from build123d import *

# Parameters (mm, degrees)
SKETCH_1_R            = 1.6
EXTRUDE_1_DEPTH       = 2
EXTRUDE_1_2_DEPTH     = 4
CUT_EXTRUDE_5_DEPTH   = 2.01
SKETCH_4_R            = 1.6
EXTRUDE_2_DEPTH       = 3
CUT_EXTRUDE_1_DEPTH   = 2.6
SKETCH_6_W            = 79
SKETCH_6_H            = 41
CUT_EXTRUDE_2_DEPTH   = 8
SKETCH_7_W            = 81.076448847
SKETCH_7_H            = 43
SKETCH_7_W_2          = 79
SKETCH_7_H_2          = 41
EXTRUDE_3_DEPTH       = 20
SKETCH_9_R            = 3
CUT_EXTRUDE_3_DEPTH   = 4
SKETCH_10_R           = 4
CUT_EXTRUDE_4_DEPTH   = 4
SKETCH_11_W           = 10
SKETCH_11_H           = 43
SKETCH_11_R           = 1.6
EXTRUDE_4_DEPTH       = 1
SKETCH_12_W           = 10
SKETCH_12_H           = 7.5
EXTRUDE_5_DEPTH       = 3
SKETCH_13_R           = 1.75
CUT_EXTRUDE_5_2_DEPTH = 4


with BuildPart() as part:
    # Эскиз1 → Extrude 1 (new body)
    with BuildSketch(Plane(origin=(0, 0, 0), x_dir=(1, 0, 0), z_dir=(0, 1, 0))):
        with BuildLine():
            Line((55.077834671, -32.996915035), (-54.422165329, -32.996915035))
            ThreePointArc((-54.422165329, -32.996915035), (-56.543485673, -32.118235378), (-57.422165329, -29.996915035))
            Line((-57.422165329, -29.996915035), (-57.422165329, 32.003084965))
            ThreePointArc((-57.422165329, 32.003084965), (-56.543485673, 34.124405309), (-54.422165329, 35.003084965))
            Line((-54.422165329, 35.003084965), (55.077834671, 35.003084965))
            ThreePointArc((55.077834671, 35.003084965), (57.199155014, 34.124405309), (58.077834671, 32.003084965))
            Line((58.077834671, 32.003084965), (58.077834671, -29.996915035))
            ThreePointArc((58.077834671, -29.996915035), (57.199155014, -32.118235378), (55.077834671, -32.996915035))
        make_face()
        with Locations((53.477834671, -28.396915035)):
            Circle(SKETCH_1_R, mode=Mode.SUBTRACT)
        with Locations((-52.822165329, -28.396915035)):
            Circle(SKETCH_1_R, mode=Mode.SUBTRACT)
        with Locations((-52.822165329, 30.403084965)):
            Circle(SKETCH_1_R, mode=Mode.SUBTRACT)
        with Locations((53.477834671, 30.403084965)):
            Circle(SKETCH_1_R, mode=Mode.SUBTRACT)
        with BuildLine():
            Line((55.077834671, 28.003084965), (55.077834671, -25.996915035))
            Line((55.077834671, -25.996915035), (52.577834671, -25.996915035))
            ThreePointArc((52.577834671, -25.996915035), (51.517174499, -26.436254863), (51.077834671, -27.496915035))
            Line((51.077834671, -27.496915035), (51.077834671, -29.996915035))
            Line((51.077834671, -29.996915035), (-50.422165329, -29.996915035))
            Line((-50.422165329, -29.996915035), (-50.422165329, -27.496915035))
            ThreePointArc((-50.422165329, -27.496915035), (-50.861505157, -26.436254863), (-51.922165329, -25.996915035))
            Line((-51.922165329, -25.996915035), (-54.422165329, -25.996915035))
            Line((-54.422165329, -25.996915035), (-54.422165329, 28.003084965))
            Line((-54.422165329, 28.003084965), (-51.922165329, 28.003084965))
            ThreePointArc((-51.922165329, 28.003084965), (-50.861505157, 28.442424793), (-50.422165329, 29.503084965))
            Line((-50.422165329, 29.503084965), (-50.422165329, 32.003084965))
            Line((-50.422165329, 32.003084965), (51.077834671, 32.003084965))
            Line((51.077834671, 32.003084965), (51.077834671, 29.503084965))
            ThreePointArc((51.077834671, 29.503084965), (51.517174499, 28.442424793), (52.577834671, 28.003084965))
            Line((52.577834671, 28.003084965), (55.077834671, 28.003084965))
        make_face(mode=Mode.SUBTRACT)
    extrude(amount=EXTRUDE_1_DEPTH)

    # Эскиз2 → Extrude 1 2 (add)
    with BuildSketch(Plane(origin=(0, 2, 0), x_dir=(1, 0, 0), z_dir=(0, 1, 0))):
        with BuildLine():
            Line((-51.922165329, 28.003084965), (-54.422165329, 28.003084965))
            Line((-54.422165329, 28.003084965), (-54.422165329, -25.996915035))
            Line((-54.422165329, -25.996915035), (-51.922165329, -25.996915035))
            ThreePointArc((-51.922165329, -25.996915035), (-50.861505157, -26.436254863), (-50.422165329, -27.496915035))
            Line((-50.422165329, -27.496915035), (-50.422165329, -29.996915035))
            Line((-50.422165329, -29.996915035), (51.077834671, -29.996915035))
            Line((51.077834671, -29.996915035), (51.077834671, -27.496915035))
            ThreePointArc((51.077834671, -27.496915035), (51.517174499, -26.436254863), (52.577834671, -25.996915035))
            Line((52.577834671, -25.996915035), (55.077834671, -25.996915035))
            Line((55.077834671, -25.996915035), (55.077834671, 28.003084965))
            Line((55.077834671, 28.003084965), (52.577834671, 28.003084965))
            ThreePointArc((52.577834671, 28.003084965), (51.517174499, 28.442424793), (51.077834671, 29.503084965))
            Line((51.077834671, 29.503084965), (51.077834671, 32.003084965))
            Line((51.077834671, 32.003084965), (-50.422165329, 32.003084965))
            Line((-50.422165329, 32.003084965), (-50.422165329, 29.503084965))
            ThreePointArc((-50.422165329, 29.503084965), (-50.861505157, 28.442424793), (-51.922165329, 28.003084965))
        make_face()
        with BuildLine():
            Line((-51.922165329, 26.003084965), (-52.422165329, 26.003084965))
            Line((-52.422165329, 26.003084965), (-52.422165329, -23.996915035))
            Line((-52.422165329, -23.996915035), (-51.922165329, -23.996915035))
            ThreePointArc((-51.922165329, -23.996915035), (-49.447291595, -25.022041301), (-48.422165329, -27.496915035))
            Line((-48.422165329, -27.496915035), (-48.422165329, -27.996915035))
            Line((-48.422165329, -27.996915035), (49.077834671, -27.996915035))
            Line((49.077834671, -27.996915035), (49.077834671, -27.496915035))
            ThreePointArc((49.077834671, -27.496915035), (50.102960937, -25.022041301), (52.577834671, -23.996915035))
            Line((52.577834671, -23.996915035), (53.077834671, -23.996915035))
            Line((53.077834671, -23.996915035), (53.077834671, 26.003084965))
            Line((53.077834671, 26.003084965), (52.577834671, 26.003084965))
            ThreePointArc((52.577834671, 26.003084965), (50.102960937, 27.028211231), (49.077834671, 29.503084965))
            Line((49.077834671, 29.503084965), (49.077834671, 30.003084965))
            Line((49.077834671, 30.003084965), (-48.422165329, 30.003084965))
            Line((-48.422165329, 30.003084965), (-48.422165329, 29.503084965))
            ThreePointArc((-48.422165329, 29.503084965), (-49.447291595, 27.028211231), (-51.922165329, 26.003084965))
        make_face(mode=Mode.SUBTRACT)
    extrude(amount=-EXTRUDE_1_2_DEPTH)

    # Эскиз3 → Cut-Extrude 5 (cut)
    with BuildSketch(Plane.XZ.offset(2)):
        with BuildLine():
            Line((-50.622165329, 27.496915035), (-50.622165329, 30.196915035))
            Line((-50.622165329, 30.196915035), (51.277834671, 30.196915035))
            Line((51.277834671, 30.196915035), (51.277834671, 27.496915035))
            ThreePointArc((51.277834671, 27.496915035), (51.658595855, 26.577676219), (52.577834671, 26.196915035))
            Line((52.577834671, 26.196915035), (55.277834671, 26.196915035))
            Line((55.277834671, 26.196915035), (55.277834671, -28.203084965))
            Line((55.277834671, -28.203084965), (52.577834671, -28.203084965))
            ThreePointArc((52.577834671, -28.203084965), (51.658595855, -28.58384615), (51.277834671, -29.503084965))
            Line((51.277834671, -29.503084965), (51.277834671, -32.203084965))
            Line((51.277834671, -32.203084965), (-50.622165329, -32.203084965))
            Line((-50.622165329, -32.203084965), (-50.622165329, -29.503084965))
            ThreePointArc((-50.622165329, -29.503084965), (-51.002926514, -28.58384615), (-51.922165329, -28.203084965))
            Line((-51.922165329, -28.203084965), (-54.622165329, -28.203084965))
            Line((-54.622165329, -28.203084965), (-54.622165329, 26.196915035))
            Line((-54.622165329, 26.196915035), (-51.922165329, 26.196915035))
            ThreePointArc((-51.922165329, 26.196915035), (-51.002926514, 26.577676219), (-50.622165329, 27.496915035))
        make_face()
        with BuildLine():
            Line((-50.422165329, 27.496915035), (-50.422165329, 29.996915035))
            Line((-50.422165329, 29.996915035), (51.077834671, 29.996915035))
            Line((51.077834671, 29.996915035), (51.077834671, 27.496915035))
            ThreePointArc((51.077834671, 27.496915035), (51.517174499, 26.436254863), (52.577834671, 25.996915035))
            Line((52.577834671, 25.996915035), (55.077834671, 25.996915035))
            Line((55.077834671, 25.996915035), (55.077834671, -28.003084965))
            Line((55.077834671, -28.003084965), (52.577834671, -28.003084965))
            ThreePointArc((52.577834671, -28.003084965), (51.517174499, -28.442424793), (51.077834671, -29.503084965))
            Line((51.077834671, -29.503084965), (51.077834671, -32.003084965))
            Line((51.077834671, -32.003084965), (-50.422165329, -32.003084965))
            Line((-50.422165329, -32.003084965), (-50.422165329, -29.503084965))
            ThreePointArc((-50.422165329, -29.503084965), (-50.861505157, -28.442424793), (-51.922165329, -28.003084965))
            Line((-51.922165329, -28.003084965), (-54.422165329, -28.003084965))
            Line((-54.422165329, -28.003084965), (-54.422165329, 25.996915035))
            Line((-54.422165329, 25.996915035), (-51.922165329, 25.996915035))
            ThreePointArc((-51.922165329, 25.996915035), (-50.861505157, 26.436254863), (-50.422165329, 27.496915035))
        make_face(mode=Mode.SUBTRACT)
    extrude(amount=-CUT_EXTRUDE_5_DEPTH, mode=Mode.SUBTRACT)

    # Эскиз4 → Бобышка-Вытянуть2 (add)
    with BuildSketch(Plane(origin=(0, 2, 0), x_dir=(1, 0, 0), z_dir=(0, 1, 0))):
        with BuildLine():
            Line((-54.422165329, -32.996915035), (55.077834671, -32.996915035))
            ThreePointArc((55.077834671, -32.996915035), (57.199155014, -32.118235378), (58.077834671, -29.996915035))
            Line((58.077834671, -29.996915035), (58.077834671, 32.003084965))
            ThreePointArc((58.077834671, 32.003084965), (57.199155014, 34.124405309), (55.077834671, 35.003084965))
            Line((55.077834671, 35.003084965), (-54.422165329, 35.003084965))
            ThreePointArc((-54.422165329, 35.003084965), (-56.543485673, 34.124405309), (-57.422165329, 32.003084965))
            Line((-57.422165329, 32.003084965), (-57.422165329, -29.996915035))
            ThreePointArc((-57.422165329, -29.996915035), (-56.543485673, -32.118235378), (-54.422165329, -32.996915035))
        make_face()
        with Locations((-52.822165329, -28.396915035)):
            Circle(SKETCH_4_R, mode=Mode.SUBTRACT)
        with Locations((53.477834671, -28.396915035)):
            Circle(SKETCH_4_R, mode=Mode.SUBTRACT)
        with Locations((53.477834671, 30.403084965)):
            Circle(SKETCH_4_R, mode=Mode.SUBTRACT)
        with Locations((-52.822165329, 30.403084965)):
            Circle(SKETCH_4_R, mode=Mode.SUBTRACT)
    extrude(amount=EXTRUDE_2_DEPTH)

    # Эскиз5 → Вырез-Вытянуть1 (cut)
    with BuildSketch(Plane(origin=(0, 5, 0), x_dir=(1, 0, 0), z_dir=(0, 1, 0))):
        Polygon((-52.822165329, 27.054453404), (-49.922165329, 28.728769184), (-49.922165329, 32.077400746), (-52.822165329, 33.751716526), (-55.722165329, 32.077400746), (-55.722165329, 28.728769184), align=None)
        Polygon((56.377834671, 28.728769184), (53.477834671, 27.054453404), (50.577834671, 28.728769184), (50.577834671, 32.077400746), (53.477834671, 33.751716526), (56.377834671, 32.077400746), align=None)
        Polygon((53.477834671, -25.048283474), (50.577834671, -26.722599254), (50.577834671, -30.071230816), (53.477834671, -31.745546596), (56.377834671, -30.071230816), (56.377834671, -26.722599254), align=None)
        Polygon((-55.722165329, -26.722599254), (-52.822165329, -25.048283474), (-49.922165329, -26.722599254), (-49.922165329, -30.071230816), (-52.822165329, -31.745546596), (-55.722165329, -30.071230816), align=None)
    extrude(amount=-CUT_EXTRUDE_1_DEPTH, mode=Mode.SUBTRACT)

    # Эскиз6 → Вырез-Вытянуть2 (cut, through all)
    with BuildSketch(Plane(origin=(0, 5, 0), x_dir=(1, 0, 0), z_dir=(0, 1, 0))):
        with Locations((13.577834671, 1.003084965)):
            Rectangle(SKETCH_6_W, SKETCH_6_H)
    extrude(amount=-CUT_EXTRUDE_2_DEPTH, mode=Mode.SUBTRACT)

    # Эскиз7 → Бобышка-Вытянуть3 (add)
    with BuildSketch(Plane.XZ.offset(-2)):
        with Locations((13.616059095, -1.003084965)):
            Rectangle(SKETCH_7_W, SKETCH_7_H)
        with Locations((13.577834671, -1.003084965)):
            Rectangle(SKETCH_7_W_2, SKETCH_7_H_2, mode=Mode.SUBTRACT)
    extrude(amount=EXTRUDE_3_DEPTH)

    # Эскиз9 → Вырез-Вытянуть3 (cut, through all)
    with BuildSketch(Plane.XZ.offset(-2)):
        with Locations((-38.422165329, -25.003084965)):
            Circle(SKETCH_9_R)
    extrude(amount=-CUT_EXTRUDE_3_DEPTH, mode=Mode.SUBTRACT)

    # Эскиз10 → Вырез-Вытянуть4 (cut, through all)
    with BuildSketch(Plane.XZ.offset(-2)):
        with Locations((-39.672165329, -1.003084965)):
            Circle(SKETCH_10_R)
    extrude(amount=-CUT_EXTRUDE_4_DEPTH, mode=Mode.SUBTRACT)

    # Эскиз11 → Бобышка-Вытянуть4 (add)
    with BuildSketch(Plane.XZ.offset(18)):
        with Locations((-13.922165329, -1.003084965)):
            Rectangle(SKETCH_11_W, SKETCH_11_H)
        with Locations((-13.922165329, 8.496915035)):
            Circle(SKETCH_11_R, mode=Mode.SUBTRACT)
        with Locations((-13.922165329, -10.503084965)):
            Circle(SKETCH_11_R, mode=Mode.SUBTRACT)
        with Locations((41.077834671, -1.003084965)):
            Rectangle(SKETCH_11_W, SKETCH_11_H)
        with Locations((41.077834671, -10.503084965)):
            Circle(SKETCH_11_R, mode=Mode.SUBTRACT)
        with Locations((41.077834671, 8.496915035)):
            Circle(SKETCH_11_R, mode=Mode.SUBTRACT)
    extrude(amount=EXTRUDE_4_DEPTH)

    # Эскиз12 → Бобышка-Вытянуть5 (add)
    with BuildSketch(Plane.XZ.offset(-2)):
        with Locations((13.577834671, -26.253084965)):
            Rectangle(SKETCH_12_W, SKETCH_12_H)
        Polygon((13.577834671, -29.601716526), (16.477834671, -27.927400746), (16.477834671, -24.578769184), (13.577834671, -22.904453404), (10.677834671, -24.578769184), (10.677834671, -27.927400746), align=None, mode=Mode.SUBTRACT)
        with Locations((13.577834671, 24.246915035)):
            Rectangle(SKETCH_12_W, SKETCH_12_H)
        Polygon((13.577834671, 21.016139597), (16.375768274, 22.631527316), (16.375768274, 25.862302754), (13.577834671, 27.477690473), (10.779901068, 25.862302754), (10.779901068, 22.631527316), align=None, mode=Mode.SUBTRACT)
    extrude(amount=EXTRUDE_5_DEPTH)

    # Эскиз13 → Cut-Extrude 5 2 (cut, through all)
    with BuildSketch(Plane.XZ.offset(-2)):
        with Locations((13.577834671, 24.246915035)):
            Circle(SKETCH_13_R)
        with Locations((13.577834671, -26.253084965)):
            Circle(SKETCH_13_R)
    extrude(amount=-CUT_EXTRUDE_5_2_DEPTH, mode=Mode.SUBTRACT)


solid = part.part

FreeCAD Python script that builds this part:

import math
import FreeCAD as App
import Part
import Sketcher
Q = App.Units.Quantity


def add_polygon(sketch, points):
    """Adds a closed chain of lines whose ends are joined by coincident constraints."""
    first, n = sketch.GeometryCount, len(points)
    for a, b in zip(points, points[1:] + points[:1]):
        sketch.addGeometry(Part.LineSegment(App.Vector(*a, 0), App.Vector(*b, 0)), False)
    for i in range(n):
        sketch.addConstraint(Sketcher.Constraint("Coincident", first + i, 2, first + (i + 1) % n, 1))

doc = App.newDocument("Part")
body = doc.addObject("PartDesign::Body", "Body")

# Sketch on XZ plane
sketch1 = body.newObject("Sketcher::SketchObject", "Sketch")
sketch1.AttachmentSupport = (doc.getObject("XZ_Plane"), [""])
sketch1.MapMode = "FlatFace"
sketch1.addGeometry([
    Part.LineSegment(App.Vector(-54.422165, 32.996915, 0), App.Vector(55.077835, 32.996915, 0)),  # 0
    Part.ArcOfCircle(Part.Circle(App.Vector(55.077835, 29.996915, 0), App.Vector(0, 0, 1), 3), math.radians(0), math.radians(90)),  # 1
    Part.LineSegment(App.Vector(58.077835, 29.996915, 0), App.Vector(58.077835, -32.003085, 0)),  # 2
    Part.ArcOfCircle(Part.Circle(App.Vector(55.077835, -32.003085, 0), App.Vector(0, 0, 1), 3), math.radians(-90), math.radians(0)),  # 3
    Part.LineSegment(App.Vector(55.077835, -35.003085, 0), App.Vector(-54.422165, -35.003085, 0)),  # 4
    Part.ArcOfCircle(Part.Circle(App.Vector(-54.422165, -32.003085, 0), App.Vector(0, 0, 1), 3), math.radians(180), math.radians(270)),  # 5
    Part.LineSegment(App.Vector(-57.422165, -32.003085, 0), App.Vector(-57.422165, 29.996915, 0)),  # 6
    Part.ArcOfCircle(Part.Circle(App.Vector(-54.422165, 29.996915, 0), App.Vector(0, 0, 1), 3), math.radians(90), math.radians(180)),  # 7
    Part.Circle(App.Vector(53.477835, 28.396915, 0), App.Vector(0, 0, 1), 1.6),  # 8
    Part.Circle(App.Vector(-52.822165, 28.396915, 0), App.Vector(0, 0, 1), 1.6),  # 9
    Part.Circle(App.Vector(53.477835, -30.403085, 0), App.Vector(0, 0, 1), 1.6),  # 10
    Part.LineSegment(App.Vector(55.077835, -28.003085, 0), App.Vector(55.077835, 25.996915, 0)),  # 11
    Part.LineSegment(App.Vector(55.077835, 25.996915, 0), App.Vector(52.577835, 25.996915, 0)),  # 12
    Part.ArcOfCircle(Part.Circle(App.Vector(52.577835, 27.496915, 0), App.Vector(0, 0, 1), 1.5), math.radians(180), math.radians(270)),  # 13
    Part.LineSegment(App.Vector(51.077835, 27.496915, 0), App.Vector(51.077835, 29.996915, 0)),  # 14
    Part.LineSegment(App.Vector(51.077835, 29.996915, 0), App.Vector(-50.422165, 29.996915, 0)),  # 15
    Part.LineSegment(App.Vector(-50.422165, 29.996915, 0), App.Vector(-50.422165, 27.496915, 0)),  # 16
    Part.ArcOfCircle(Part.Circle(App.Vector(-51.922165, 27.496915, 0), App.Vector(0, 0, 1), 1.5), math.radians(-90), math.radians(0)),  # 17
    Part.LineSegment(App.Vector(-51.922165, 25.996915, 0), App.Vector(-54.422165, 25.996915, 0)),  # 18
    Part.LineSegment(App.Vector(-54.422165, 25.996915, 0), App.Vector(-54.422165, -28.003085, 0)),  # 19
    Part.LineSegment(App.Vector(-54.422165, -28.003085, 0), App.Vector(-51.922165, -28.003085, 0)),  # 20
    Part.ArcOfCircle(Part.Circle(App.Vector(-51.922165, -29.503085, 0), App.Vector(0, 0, 1), 1.5), math.radians(0), math.radians(90)),  # 21
    Part.LineSegment(App.Vector(-50.422165, -29.503085, 0), App.Vector(-50.422165, -32.003085, 0)),  # 22
    Part.LineSegment(App.Vector(-50.422165, -32.003085, 0), App.Vector(51.077835, -32.003085, 0)),  # 23
    Part.LineSegment(App.Vector(51.077835, -32.003085, 0), App.Vector(51.077835, -29.503085, 0)),  # 24
    Part.ArcOfCircle(Part.Circle(App.Vector(52.577835, -29.503085, 0), App.Vector(0, 0, 1), 1.5), math.radians(90), math.radians(180)),  # 25
    Part.LineSegment(App.Vector(52.577835, -28.003085, 0), App.Vector(55.077835, -28.003085, 0)),  # 26
    Part.Circle(App.Vector(-52.822165, -30.403085, 0), App.Vector(0, 0, 1), 1.6),  # 27
], False)
sketch1.addConstraint([
    Sketcher.Constraint("Tangent", 0, 2, 1, 2),
    Sketcher.Constraint("Tangent", 1, 1, 2, 1),
    Sketcher.Constraint("Tangent", 2, 2, 3, 2),
    Sketcher.Constraint("Tangent", 3, 1, 4, 1),
    Sketcher.Constraint("Tangent", 4, 2, 5, 2),
    Sketcher.Constraint("Tangent", 5, 1, 6, 1),
    Sketcher.Constraint("Tangent", 6, 2, 7, 2),
    Sketcher.Constraint("Tangent", 7, 1, 0, 1),
    Sketcher.Constraint("Coincident", 11, 2, 12, 1),
    Sketcher.Constraint("Tangent", 12, 2, 13, 2),
    Sketcher.Constraint("Tangent", 13, 1, 14, 1),
    Sketcher.Constraint("Coincident", 14, 2, 15, 1),
    Sketcher.Constraint("Coincident", 15, 2, 16, 1),
    Sketcher.Constraint("Tangent", 16, 2, 17, 2),
    Sketcher.Constraint("Tangent", 17, 1, 18, 1),
    Sketcher.Constraint("Coincident", 18, 2, 19, 1),
    Sketcher.Constraint("Coincident", 19, 2, 20, 1),
    Sketcher.Constraint("Tangent", 20, 2, 21, 2),
    Sketcher.Constraint("Tangent", 21, 1, 22, 1),
    Sketcher.Constraint("Coincident", 22, 2, 23, 1),
    Sketcher.Constraint("Coincident", 23, 2, 24, 1),
    Sketcher.Constraint("Tangent", 24, 2, 25, 2),
    Sketcher.Constraint("Tangent", 25, 1, 26, 1),
    Sketcher.Constraint("Coincident", 26, 2, 11, 1),
    Sketcher.Constraint("Horizontal", 0),
    Sketcher.Constraint("Vertical", 2),
    Sketcher.Constraint("Horizontal", 4),
    Sketcher.Constraint("Vertical", 6),
    Sketcher.Constraint("Vertical", 11),
    Sketcher.Constraint("Horizontal", 12),
    Sketcher.Constraint("Vertical", 14),
    Sketcher.Constraint("Horizontal", 15),
    Sketcher.Constraint("Vertical", 16),
    Sketcher.Constraint("Horizontal", 18),
    Sketcher.Constraint("Vertical", 19),
    Sketcher.Constraint("Horizontal", 20),
    Sketcher.Constraint("Vertical", 22),
    Sketcher.Constraint("Horizontal", 23),
    Sketcher.Constraint("Vertical", 24),
    Sketcher.Constraint("Horizontal", 26),
    Sketcher.Constraint("Equal", 1, 3),
    Sketcher.Constraint("Equal", 3, 5),
    Sketcher.Constraint("Equal", 5, 7),
    Sketcher.Constraint("Equal", 8, 9),
    Sketcher.Constraint("Equal", 9, 10),
    Sketcher.Constraint("Equal", 13, 17),
    Sketcher.Constraint("Equal", 17, 21),
    Sketcher.Constraint("Equal", 21, 25),
    Sketcher.Constraint("Equal", 10, 27),
    Sketcher.Constraint("Horizontal", 8, 3, 9, 3),
    Sketcher.Constraint("Horizontal", 13, 3, 17, 3),
    Sketcher.Constraint("Horizontal", 21, 3, 25, 3),
    Sketcher.Constraint("Horizontal", 10, 3, 27, 3),
    Sketcher.Constraint("Horizontal", 6, 2, 14, 2),
    Sketcher.Constraint("Horizontal", 5, 1, 22, 2),
    Sketcher.Constraint("Vertical", 8, 3, 10, 3),
    Sketcher.Constraint("Vertical", 17, 3, 21, 3),
    Sketcher.Constraint("Vertical", 13, 3, 25, 3),
    Sketcher.Constraint("Vertical", 9, 3, 27, 3),
    Sketcher.Constraint("Vertical", 3, 1, 11, 2),
    Sketcher.Constraint("Vertical", 7, 1, 18, 2),
    Sketcher.Constraint("Equal", 12, 18),
    Sketcher.Constraint("Equal", 26, 14),
    Sketcher.Constraint("Equal", 16, 22),
    Sketcher.Constraint("Radius", 1, 3.0),
    Sketcher.Constraint("Diameter", 8, 3.2),
    Sketcher.Constraint("Radius", 13, 1.5),
    Sketcher.Constraint("DistanceY", 2, 2, 2, 1, 62.0),
    Sketcher.Constraint("DistanceY", 11, 1, 11, 2, 54.0),
    Sketcher.Constraint("DistanceX", 0, 1, 0, 2, 109.5),
    Sketcher.Constraint("DistanceX", 8, 3, 1, 3, 1.6),
    Sketcher.Constraint("DistanceY", 8, 3, 1, 3, 1.6),
    Sketcher.Constraint("DistanceX", 7, 3, 9, 3, 1.6),
    Sketcher.Constraint("DistanceY", 3, 3, 10, 3, 1.6),
    Sketcher.Constraint("DistanceX", -1, 1, 1, 3, 55.077835),
    Sketcher.Constraint("DistanceY", -1, 1, 1, 3, 29.996915),
])
pad1 = body.newObject("PartDesign::Pad", "Pad")
pad1.Profile = sketch1
pad1.Length = 2
pad1.Reversed = True

# Sketch on XZ plane
sketch2 = body.newObject("Sketcher::SketchObject", "Sketch001")
sketch2.AttachmentSupport = (doc.getObject("XZ_Plane"), [""])
sketch2.MapMode = "FlatFace"
sketch2.AttachmentOffset = App.Placement(App.Vector(0, 0, -2), App.Rotation())
sketch2.addGeometry([
    Part.LineSegment(App.Vector(-51.922165, -28.003085, 0), App.Vector(-54.422165, -28.003085, 0)),  # 0
    Part.LineSegment(App.Vector(-54.422165, -28.003085, 0), App.Vector(-54.422165, 25.996915, 0)),  # 1
    Part.LineSegment(App.Vector(-54.422165, 25.996915, 0), App.Vector(-51.922165, 25.996915, 0)),  # 2
    Part.ArcOfCircle(Part.Circle(App.Vector(-51.922165, 27.496915, 0), App.Vector(0, 0, 1), 1.5), math.radians(-90), math.radians(0)),  # 3
    Part.LineSegment(App.Vector(-50.422165, 27.496915, 0), App.Vector(-50.422165, 29.996915, 0)),  # 4
    Part.LineSegment(App.Vector(-50.422165, 29.996915, 0), App.Vector(51.077835, 29.996915, 0)),  # 5
    Part.LineSegment(App.Vector(51.077835, 29.996915, 0), App.Vector(51.077835, 27.496915, 0)),  # 6
    Part.ArcOfCircle(Part.Circle(App.Vector(52.577835, 27.496915, 0), App.Vector(0, 0, 1), 1.5), math.radians(180), math.radians(270)),  # 7
    Part.LineSegment(App.Vector(52.577835, 25.996915, 0), App.Vector(55.077835, 25.996915, 0)),  # 8
    Part.LineSegment(App.Vector(55.077835, 25.996915, 0), App.Vector(55.077835, -28.003085, 0)),  # 9
    Part.LineSegment(App.Vector(55.077835, -28.003085, 0), App.Vector(52.577835, -28.003085, 0)),  # 10
    Part.ArcOfCircle(Part.Circle(App.Vector(52.577835, -29.503085, 0), App.Vector(0, 0, 1), 1.5), math.radians(90), math.radians(180)),  # 11
    Part.LineSegment(App.Vector(51.077835, -29.503085, 0), App.Vector(51.077835, -32.003085, 0)),  # 12
    Part.LineSegment(App.Vector(51.077835, -32.003085, 0), App.Vector(-50.422165, -32.003085, 0)),  # 13
    Part.LineSegment(App.Vector(-50.422165, -32.003085, 0), App.Vector(-50.422165, -29.503085, 0)),  # 14
    Part.ArcOfCircle(Part.Circle(App.Vector(-51.922165, -29.503085, 0), App.Vector(0, 0, 1), 1.5), math.radians(0), math.radians(90)),  # 15
    Part.LineSegment(App.Vector(-52.422165, -26.003085, 0), App.Vector(-51.922165, -26.003085, 0)),  # 16
    Part.ArcOfCircle(Part.Circle(App.Vector(-51.922165, -29.503085, 0), App.Vector(0, 0, 1), 3.5), math.radians(0), math.radians(90)),  # 17
    Part.LineSegment(App.Vector(-48.422165, -29.503085, 0), App.Vector(-48.422165, -30.003085, 0)),  # 18
    Part.LineSegment(App.Vector(-48.422165, -30.003085, 0), App.Vector(49.077835, -30.003085, 0)),  # 19
    Part.LineSegment(App.Vector(49.077835, -30.003085, 0), App.Vector(49.077835, -29.503085, 0)),  # 20
    Part.ArcOfCircle(Part.Circle(App.Vector(52.577835, -29.503085, 0), App.Vector(0, 0, 1), 3.5), math.radians(90), math.radians(180)),  # 21
    Part.LineSegment(App.Vector(52.577835, -26.003085, 0), App.Vector(53.077835, -26.003085, 0)),  # 22
    Part.LineSegment(App.Vector(53.077835, -26.003085, 0), App.Vector(53.077835, 23.996915, 0)),  # 23
    Part.LineSegment(App.Vector(53.077835, 23.996915, 0), App.Vector(52.577835, 23.996915, 0)),  # 24
    Part.ArcOfCircle(Part.Circle(App.Vector(52.577835, 27.496915, 0), App.Vector(0, 0, 1), 3.5), math.radians(-180), math.radians(-90)),  # 25
    Part.LineSegment(App.Vector(49.077835, 27.496915, 0), App.Vector(49.077835, 27.996915, 0)),  # 26
    Part.LineSegment(App.Vector(49.077835, 27.996915, 0), App.Vector(-48.422165, 27.996915, 0)),  # 27
    Part.LineSegment(App.Vector(-48.422165, 27.996915, 0), App.Vector(-48.422165, 27.496915, 0)),  # 28
    Part.ArcOfCircle(Part.Circle(App.Vector(-51.922165, 27.496915, 0), App.Vector(0, 0, 1), 3.5), math.radians(-90), math.radians(0)),  # 29
    Part.LineSegment(App.Vector(-51.922165, 23.996915, 0), App.Vector(-52.422165, 23.996915, 0)),  # 30
    Part.LineSegment(App.Vector(-52.422165, 23.996915, 0), App.Vector(-52.422165, -26.003085, 0)),  # 31
], False)
sketch2.addConstraint([
    Sketcher.Constraint("Coincident", 0, 2, 1, 1),
    Sketcher.Constraint("Coincident", 1, 2, 2, 1),
    Sketcher.Constraint("Tangent", 2, 2, 3, 1),
    Sketcher.Constraint("Tangent", 3, 2, 4, 1),
    Sketcher.Constraint("Coincident", 4, 2, 5, 1),
    Sketcher.Constraint("Coincident", 5, 2, 6, 1),
    Sketcher.Constraint("Tangent", 6, 2, 7, 1),
    Sketcher.Constraint("Tangent", 7, 2, 8, 1),
    Sketcher.Constraint("Coincident", 8, 2, 9, 1),
    Sketcher.Constraint("Coincident", 9, 2, 10, 1),
    Sketcher.Constraint("Tangent", 10, 2, 11, 1),
    Sketcher.Constraint("Tangent", 11, 2, 12, 1),
    Sketcher.Constraint("Coincident", 12, 2, 13, 1),
    Sketcher.Constraint("Coincident", 13, 2, 14, 1),
    Sketcher.Constraint("Tangent", 14, 2, 15, 1),
    Sketcher.Constraint("Tangent", 15, 2, 0, 1),
    Sketcher.Constraint("Tangent", 16, 2, 17, 2),
    Sketcher.Constraint("Tangent", 17, 1, 18, 1),
    Sketcher.Constraint("Coincident", 18, 2, 19, 1),
    Sketcher.Constraint("Coincident", 19, 2, 20, 1),
    Sketcher.Constraint("Tangent", 20, 2, 21, 2),
    Sketcher.Constraint("Tangent", 21, 1, 22, 1),
    Sketcher.Constraint("Coincident", 22, 2, 23, 1),
    Sketcher.Constraint("Coincident", 23, 2, 24, 1),
    Sketcher.Constraint("Tangent", 24, 2, 25, 2),
    Sketcher.Constraint("Tangent", 25, 1, 26, 1),
    Sketcher.Constraint("Coincident", 26, 2, 27, 1),
    Sketcher.Constraint("Coincident", 27, 2, 28, 1),
    Sketcher.Constraint("Tangent", 28, 2, 29, 2),
    Sketcher.Constraint("Tangent", 29, 1, 30, 1),
    Sketcher.Constraint("Coincident", 30, 2, 31, 1),
    Sketcher.Constraint("Coincident", 31, 2, 16, 1),
    Sketcher.Constraint("Horizontal", 0),
    Sketcher.Constraint("Vertical", 1),
    Sketcher.Constraint("Horizontal", 2),
    Sketcher.Constraint("Vertical", 4),
    Sketcher.Constraint("Horizontal", 5),
    Sketcher.Constraint("Vertical", 6),
    Sketcher.Constraint("Horizontal", 8),
    Sketcher.Constraint("Vertical", 9),
    Sketcher.Constraint("Horizontal", 10),
    Sketcher.Constraint("Vertical", 12),
    Sketcher.Constraint("Horizontal", 13),
    Sketcher.Constraint("Vertical", 14),
    Sketcher.Constraint("Horizontal", 16),
    Sketcher.Constraint("Vertical", 18),
    Sketcher.Constraint("Horizontal", 19),
    Sketcher.Constraint("Vertical", 20),
    Sketcher.Constraint("Horizontal", 22),
    Sketcher.Constraint("Vertical", 23),
    Sketcher.Constraint("Horizontal", 24),
    Sketcher.Constraint("Vertical", 26),
    Sketcher.Constraint("Horizontal", 27),
    Sketcher.Constraint("Vertical", 28),
    Sketcher.Constraint("Horizontal", 30),
    Sketcher.Constraint("Vertical", 31),
    Sketcher.Constraint("Coincident", 17, 3, 15, 3),
    Sketcher.Constraint("Coincident", 21, 3, 11, 3),
    Sketcher.Constraint("Coincident", 25, 3, 7, 3),
    Sketcher.Constraint("Coincident", 29, 3, 3, 3),
    Sketcher.Constraint("Equal", 3, 7),
    Sketcher.Constraint("Equal", 7, 11),
    Sketcher.Constraint("Equal", 11, 15),
    Sketcher.Constraint("Equal", 17, 21),
    Sketcher.Constraint("Equal", 21, 25),
    Sketcher.Constraint("Equal", 25, 29),
    Sketcher.Constraint("Horizontal", 3, 3, 7, 3),
    Sketcher.Constraint("Horizontal", 11, 3, 15, 3),
    Sketcher.Constraint("Vertical", 7, 3, 11, 3),
    Sketcher.Constraint("Vertical", 3, 3, 15, 3),
    Sketcher.Constraint("Equal", 2, 8),
    Sketcher.Constraint("Equal", 16, 22),
    Sketcher.Constraint("Equal", 10, 4),
    Sketcher.Constraint("Equal", 6, 12),
    Sketcher.Constraint("Equal", 30, 18),
    Sketcher.Constraint("Equal", 20, 26),
    Sketcher.Constraint("Radius", 3, 1.5),
    Sketcher.Constraint("Radius", 17, 3.5),
    Sketcher.Constraint("DistanceY", 1, 1, 1, 2, 54.0),
    Sketcher.Constraint("DistanceX", 0, 2, 0, 1, 2.5),
    Sketcher.Constraint("DistanceX", 5, 1, 5, 2, 101.5),
    Sketcher.Constraint("DistanceX", 16, 1, 16, 2, 0.5),
    Sketcher.Constraint("DistanceX", 3, 3, -1, 1, 51.922165),
    Sketcher.Constraint("DistanceY", -1, 1, 3, 3, 27.496915),
])
pad2 = body.newObject("PartDesign::Pad", "Pad001")
pad2.Profile = sketch2
pad2.Length = 4

# Sketch on XZ plane
sketch3 = body.newObject("Sketcher::SketchObject", "Sketch002")
sketch3.AttachmentSupport = (doc.getObject("XZ_Plane"), [""])
sketch3.MapMode = "FlatFace"
sketch3.AttachmentOffset = App.Placement(App.Vector(0, 0, 2), App.Rotation())
sketch3.addGeometry([
    Part.LineSegment(App.Vector(-50.622165, 30.196915, 0), App.Vector(-50.622165, 27.496915, 0)),  # 0
    Part.ArcOfCircle(Part.Circle(App.Vector(-51.922165, 27.496915, 0), App.Vector(0, 0, 1), 1.3), math.radians(-90), math.radians(0)),  # 1
    Part.LineSegment(App.Vector(-51.922165, 26.196915, 0), App.Vector(-54.622165, 26.196915, 0)),  # 2
    Part.LineSegment(App.Vector(-54.622165, 26.196915, 0), App.Vector(-54.622165, -28.203085, 0)),  # 3
    Part.LineSegment(App.Vector(-54.622165, -28.203085, 0), App.Vector(-51.922165, -28.203085, 0)),  # 4
    Part.ArcOfCircle(Part.Circle(App.Vector(-51.922165, -29.503085, 0), App.Vector(0, 0, 1), 1.3), math.radians(0), math.radians(90)),  # 5
    Part.LineSegment(App.Vector(-50.622165, -29.503085, 0), App.Vector(-50.622165, -32.203085, 0)),  # 6
    Part.LineSegment(App.Vector(-50.622165, -32.203085, 0), App.Vector(51.277835, -32.203085, 0)),  # 7
    Part.LineSegment(App.Vector(51.277835, -32.203085, 0), App.Vector(51.277835, -29.503085, 0)),  # 8
    Part.ArcOfCircle(Part.Circle(App.Vector(52.577835, -29.503085, 0), App.Vector(0, 0, 1), 1.3), math.radians(90), math.radians(180)),  # 9
    Part.LineSegment(App.Vector(52.577835, -28.203085, 0), App.Vector(55.277835, -28.203085, 0)),  # 10
    Part.LineSegment(App.Vector(55.277835, -28.203085, 0), App.Vector(55.277835, 26.196915, 0)),  # 11
    Part.LineSegment(App.Vector(55.277835, 26.196915, 0), App.Vector(52.577835, 26.196915, 0)),  # 12
    Part.ArcOfCircle(Part.Circle(App.Vector(52.577835, 27.496915, 0), App.Vector(0, 0, 1), 1.3), math.radians(180), math.radians(270)),  # 13
    Part.LineSegment(App.Vector(51.277835, 27.496915, 0), App.Vector(51.277835, 30.196915, 0)),  # 14
    Part.LineSegment(App.Vector(51.277835, 30.196915, 0), App.Vector(-50.622165, 30.196915, 0)),  # 15
    Part.LineSegment(App.Vector(-50.422165, 27.496915, 0), App.Vector(-50.422165, 29.996915, 0)),  # 16
    Part.LineSegment(App.Vector(-50.422165, 29.996915, 0), App.Vector(51.077835, 29.996915, 0)),  # 17
    Part.LineSegment(App.Vector(51.077835, 29.996915, 0), App.Vector(51.077835, 27.496915, 0)),  # 18
    Part.ArcOfCircle(Part.Circle(App.Vector(52.577835, 27.496915, 0), App.Vector(0, 0, 1), 1.5), math.radians(180), math.radians(270)),  # 19
    Part.LineSegment(App.Vector(52.577835, 25.996915, 0), App.Vector(55.077835, 25.996915, 0)),  # 20
    Part.LineSegment(App.Vector(55.077835, 25.996915, 0), App.Vector(55.077835, -28.003085, 0)),  # 21
    Part.LineSegment(App.Vector(55.077835, -28.003085, 0), App.Vector(52.577835, -28.003085, 0)),  # 22
    Part.ArcOfCircle(Part.Circle(App.Vector(52.577835, -29.503085, 0), App.Vector(0, 0, 1), 1.5), math.radians(90), math.radians(180)),  # 23
    Part.LineSegment(App.Vector(51.077835, -29.503085, 0), App.Vector(51.077835, -32.003085, 0)),  # 24
    Part.LineSegment(App.Vector(51.077835, -32.003085, 0), App.Vector(-50.422165, -32.003085, 0)),  # 25
    Part.LineSegment(App.Vector(-50.422165, -32.003085, 0), App.Vector(-50.422165, -29.503085, 0)),  # 26
    Part.ArcOfCircle(Part.Circle(App.Vector(-51.922165, -29.503085, 0), App.Vector(0, 0, 1), 1.5), math.radians(0), math.radians(90)),  # 27
    Part.LineSegment(App.Vector(-51.922165, -28.003085, 0), App.Vector(-54.422165, -28.003085, 0)),  # 28
    Part.LineSegment(App.Vector(-54.422165, -28.003085, 0), App.Vector(-54.422165, 25.996915, 0)),  # 29
    Part.LineSegment(App.Vector(-54.422165, 25.996915, 0), App.Vector(-51.922165, 25.996915, 0)),  # 30
    Part.ArcOfCircle(Part.Circle(App.Vector(-51.922165, 27.496915, 0), App.Vector(0, 0, 1), 1.5), math.radians(-90), math.radians(0)),  # 31
], False)
sketch3.addConstraint([
    Sketcher.Constraint("Tangent", 0, 2, 1, 2),
    Sketcher.Constraint("Tangent", 1, 1, 2, 1),
    Sketcher.Constraint("Coincident", 2, 2, 3, 1),
    Sketcher.Constraint("Coincident", 3, 2, 4, 1),
    Sketcher.Constraint("Tangent", 4, 2, 5, 2),
    Sketcher.Constraint("Tangent", 5, 1, 6, 1),
    Sketcher.Constraint("Coincident", 6, 2, 7, 1),
    Sketcher.Constraint("Coincident", 7, 2, 8, 1),
    Sketcher.Constraint("Tangent", 8, 2, 9, 2),
    Sketcher.Constraint("Tangent", 9, 1, 10, 1),
    Sketcher.Constraint("Coincident", 10, 2, 11, 1),
    Sketcher.Constraint("Coincident", 11, 2, 12, 1),
    Sketcher.Constraint("Tangent", 12, 2, 13, 2),
    Sketcher.Constraint("Tangent", 13, 1, 14, 1),
    Sketcher.Constraint("Coincident", 14, 2, 15, 1),
    Sketcher.Constraint("Coincident", 15, 2, 0, 1),
    Sketcher.Constraint("Coincident", 16, 2, 17, 1),
    Sketcher.Constraint("Coincident", 17, 2, 18, 1),
    Sketcher.Constraint("Tangent", 18, 2, 19, 1),
    Sketcher.Constraint("Tangent", 19, 2, 20, 1),
    Sketcher.Constraint("Coincident", 20, 2, 21, 1),
    Sketcher.Constraint("Coincident", 21, 2, 22, 1),
    Sketcher.Constraint("Tangent", 22, 2, 23, 1),
    Sketcher.Constraint("Tangent", 23, 2, 24, 1),
    Sketcher.Constraint("Coincident", 24, 2, 25, 1),
    Sketcher.Constraint("Coincident", 25, 2, 26, 1),
    Sketcher.Constraint("Tangent", 26, 2, 27, 1),
    Sketcher.Constraint("Tangent", 27, 2, 28, 1),
    Sketcher.Constraint("Coincident", 28, 2, 29, 1),
    Sketcher.Constraint("Coincident", 29, 2, 30, 1),
    Sketcher.Constraint("Tangent", 30, 2, 31, 1),
    Sketcher.Constraint("Tangent", 31, 2, 16, 1),
    Sketcher.Constraint("Vertical", 0),
    Sketcher.Constraint("Horizontal", 2),
    Sketcher.Constraint("Vertical", 3),
    Sketcher.Constraint("Horizontal", 4),
    Sketcher.Constraint("Vertical", 6),
    Sketcher.Constraint("Horizontal", 7),
    Sketcher.Constraint("Vertical", 8),
    Sketcher.Constraint("Horizontal", 10),
    Sketcher.Constraint("Vertical", 11),
    Sketcher.Constraint("Horizontal", 12),
    Sketcher.Constraint("Vertical", 14),
    Sketcher.Constraint("Horizontal", 15),
    Sketcher.Constraint("Vertical", 16),
    Sketcher.Constraint("Horizontal", 17),
    Sketcher.Constraint("Vertical", 18),
    Sketcher.Constraint("Horizontal", 20),
    Sketcher.Constraint("Vertical", 21),
    Sketcher.Constraint("Horizontal", 22),
    Sketcher.Constraint("Vertical", 24),
    Sketcher.Constraint("Horizontal", 25),
    Sketcher.Constraint("Vertical", 26),
    Sketcher.Constraint("Horizontal", 28),
    Sketcher.Constraint("Vertical", 29),
    Sketcher.Constraint("Horizontal", 30),
    Sketcher.Constraint("Coincident", 19, 3, 13, 3),
    Sketcher.Constraint("Coincident", 23, 3, 9, 3),
    Sketcher.Constraint("Coincident", 27, 3, 5, 3),
    Sketcher.Constraint("Coincident", 31, 3, 1, 3),
    Sketcher.Constraint("Equal", 1, 5),
    Sketcher.Constraint("Equal", 5, 9),
    Sketcher.Constraint("Equal", 9, 13),
    Sketcher.Constraint("Equal", 19, 23),
    Sketcher.Constraint("Equal", 23, 27),
    Sketcher.Constraint("Equal", 27, 31),
    Sketcher.Constraint("Horizontal", 5, 3, 9, 3),
    Sketcher.Constraint("Horizontal", 1, 3, 13, 3),
    Sketcher.Constraint("Vertical", 1, 3, 5, 3),
    Sketcher.Constraint("Vertical", 9, 3, 13, 3),
    Sketcher.Constraint("Equal", 4, 10),
    Sketcher.Constraint("Equal", 22, 28),
    Sketcher.Constraint("Equal", 12, 0),
    Sketcher.Constraint("Equal", 0, 6),
    Sketcher.Constraint("Equal", 30, 16),
    Sketcher.Constraint("Equal", 18, 24),
    Sketcher.Constraint("Radius", 1, 1.3),
    Sketcher.Constraint("Radius", 19, 1.5),
    Sketcher.Constraint("DistanceY", 21, 2, 21, 1, 54.0),
    Sketcher.Constraint("DistanceX", 2, 2, 2, 1, 2.7),
    Sketcher.Constraint("DistanceX", 7, 1, 7, 2, 101.9),
    Sketcher.Constraint("DistanceX", 20, 1, 20, 2, 2.5),
    Sketcher.Constraint("DistanceX", 1, 3, -1, 1, 51.922165),
    Sketcher.Constraint("DistanceY", -1, 1, 1, 3, 27.496915),
])
pocket1 = body.newObject("PartDesign::Pocket", "Pocket")
pocket1.Profile = sketch3
pocket1.Length = 2.01

# Sketch on XZ plane
sketch4 = body.newObject("Sketcher::SketchObject", "Sketch003")
sketch4.AttachmentSupport = (doc.getObject("XZ_Plane"), [""])
sketch4.MapMode = "FlatFace"
sketch4.AttachmentOffset = App.Placement(App.Vector(0, 0, -2), App.Rotation())
sketch4.addGeometry([
    Part.LineSegment(App.Vector(-54.422165, 32.996915, 0), App.Vector(55.077835, 32.996915, 0)),  # 0
    Part.ArcOfCircle(Part.Circle(App.Vector(55.077835, 29.996915, 0), App.Vector(0, 0, 1), 3), math.radians(0), math.radians(90)),  # 1
    Part.LineSegment(App.Vector(58.077835, 29.996915, 0), App.Vector(58.077835, -32.003085, 0)),  # 2
    Part.ArcOfCircle(Part.Circle(App.Vector(55.077835, -32.003085, 0), App.Vector(0, 0, 1), 3), math.radians(-90), math.radians(0)),  # 3
    Part.LineSegment(App.Vector(55.077835, -35.003085, 0), App.Vector(-54.422165, -35.003085, 0)),  # 4
    Part.ArcOfCircle(Part.Circle(App.Vector(-54.422165, -32.003085, 0), App.Vector(0, 0, 1), 3), math.radians(180), math.radians(270)),  # 5
    Part.LineSegment(App.Vector(-57.422165, -32.003085, 0), App.Vector(-57.422165, 29.996915, 0)),  # 6
    Part.ArcOfCircle(Part.Circle(App.Vector(-54.422165, 29.996915, 0), App.Vector(0, 0, 1), 3), math.radians(90), math.radians(180)),  # 7
    Part.Circle(App.Vector(-52.822165, 28.396915, 0), App.Vector(0, 0, 1), 1.6),  # 8
    Part.Circle(App.Vector(53.477835, 28.396915, 0), App.Vector(0, 0, 1), 1.6),  # 9
    Part.Circle(App.Vector(-52.822165, -30.403085, 0), App.Vector(0, 0, 1), 1.6),  # 10
    Part.Circle(App.Vector(53.477835, -30.403085, 0), App.Vector(0, 0, 1), 1.6),  # 11
], False)
sketch4.addConstraint([
    Sketcher.Constraint("Tangent", 0, 2, 1, 2),
    Sketcher.Constraint("Tangent", 1, 1, 2, 1),
    Sketcher.Constraint("Tangent", 2, 2, 3, 2),
    Sketcher.Constraint("Tangent", 3, 1, 4, 1),
    Sketcher.Constraint("Tangent", 4, 2, 5, 2),
    Sketcher.Constraint("Tangent", 5, 1, 6, 1),
    Sketcher.Constraint("Tangent", 6, 2, 7, 2),
    Sketcher.Constraint("Tangent", 7, 1, 0, 1),
    Sketcher.Constraint("Horizontal", 0),
    Sketcher.Constraint("Vertical", 2),
    Sketcher.Constraint("Horizontal", 4),
    Sketcher.Constraint("Vertical", 6),
    Sketcher.Constraint("Equal", 1, 3),
    Sketcher.Constraint("Equal", 3, 5),
    Sketcher.Constraint("Equal", 5, 7),
    Sketcher.Constraint("Equal", 8, 9),
    Sketcher.Constraint("Equal", 9, 10),
    Sketcher.Constraint("Equal", 10, 11),
    Sketcher.Constraint("Horizontal", 8, 3, 9, 3),
    Sketcher.Constraint("Horizontal", 10, 3, 11, 3),
    Sketcher.Constraint("Vertical", 8, 3, 10, 3),
    Sketcher.Constraint("Vertical", 9, 3, 11, 3),
    Sketcher.Constraint("Radius", 1, 3.0),
    Sketcher.Constraint("Diameter", 8, 3.2),
    Sketcher.Constraint("DistanceY", 2, 2, 2, 1, 62.0),
    Sketcher.Constraint("DistanceX", 0, 1, 0, 2, 109.5),
    Sketcher.Constraint("DistanceX", 7, 3, 8, 3, 1.6),
    Sketcher.Constraint("DistanceY", 8, 3, 7, 3, 1.6),
    Sketcher.Constraint("DistanceX", 9, 3, 1, 3, 1.6),
    Sketcher.Constraint("DistanceY", 5, 3, 10, 3, 1.6),
    Sketcher.Constraint("DistanceX", -1, 1, 1, 3, 55.077835),
    Sketcher.Constraint("DistanceY", -1, 1, 1, 3, 29.996915),
])
pad3 = body.newObject("PartDesign::Pad", "Pad002")
pad3.Profile = sketch4
pad3.Length = 3
pad3.Reversed = True

# Sketch on XZ plane
sketch5 = body.newObject("Sketcher::SketchObject", "Sketch004")
sketch5.AttachmentSupport = (doc.getObject("XZ_Plane"), [""])
sketch5.MapMode = "FlatFace"
sketch5.AttachmentOffset = App.Placement(App.Vector(0, 0, -5), App.Rotation())
add_polygon(sketch5, [(-52.822165, -27.054453), (-49.922165, -28.728769), (-49.922165, -32.077401), (-52.822165, -33.751717), (-55.722165, -32.077401), (-55.722165, -28.728769)])  # lines 0-5
add_polygon(sketch5, [(53.477835, -27.054453), (56.377835, -28.728769), (56.377835, -32.077401), (53.477835, -33.751717), (50.577835, -32.077401), (50.577835, -28.728769)])  # lines 6-11
add_polygon(sketch5, [(53.477835, 25.048283), (50.577835, 26.722599), (50.577835, 30.071231), (53.477835, 31.745547), (56.377835, 30.071231), (56.377835, 26.722599)])  # lines 12-17
add_polygon(sketch5, [(-52.822165, 25.048283), (-55.722165, 26.722599), (-55.722165, 30.071231), (-52.822165, 31.745547), (-49.922165, 30.071231), (-49.922165, 26.722599)])  # lines 18-23
sketch5.addConstraint([
    Sketcher.Constraint("Vertical", 1),
    Sketcher.Constraint("Vertical", 4),
    Sketcher.Constraint("Vertical", 7),
    Sketcher.Constraint("Vertical", 10),
    Sketcher.Constraint("Vertical", 13),
    Sketcher.Constraint("Vertical", 16),
    Sketcher.Constraint("Vertical", 19),
    Sketcher.Constraint("Vertical", 22),
    Sketcher.Constraint("Parallel", 0, 3),
    Sketcher.Constraint("Parallel", 2, 5),
    Sketcher.Constraint("Parallel", 3, 6),
    Sketcher.Constraint("Parallel", 5, 8),
    Sketcher.Constraint("Parallel", 6, 9),
    Sketcher.Constraint("Parallel", 8, 11),
    Sketcher.Constraint("Parallel", 9, 12),
    Sketcher.Constraint("Parallel", 11, 14),
    Sketcher.Constraint("Parallel", 12, 15),
    Sketcher.Constraint("Parallel", 14, 17),
    Sketcher.Constraint("Parallel", 15, 18),
    Sketcher.Constraint("Parallel", 17, 20),
    Sketcher.Constraint("Parallel", 18, 21),
    Sketcher.Constraint("Parallel", 20, 23),
    Sketcher.Constraint("Horizontal", 1, 2, 3, 2),
    Sketcher.Constraint("Horizontal", 0, 2, 4, 2),
    Sketcher.Constraint("Horizontal", 4, 2, 6, 2),
    Sketcher.Constraint("Horizontal", 3, 2, 7, 2),
    Sketcher.Constraint("Horizontal", 2, 2, 8, 2),
    Sketcher.Constraint("Horizontal", 7, 2, 9, 2),
    Sketcher.Constraint("Horizontal", 6, 2, 10, 2),
    Sketcher.Constraint("Horizontal", 13, 2, 15, 2),
    Sketcher.Constraint("Horizontal", 12, 2, 16, 2),
    Sketcher.Constraint("Horizontal", 16, 2, 18, 2),
    Sketcher.Constraint("Horizontal", 15, 2, 19, 2),
    Sketcher.Constraint("Horizontal", 14, 2, 20, 2),
    Sketcher.Constraint("Horizontal", 19, 2, 21, 2),
    Sketcher.Constraint("Horizontal", 18, 2, 22, 2),
    Sketcher.Constraint("Vertical", 2, 2, 5, 2),
    Sketcher.Constraint("Vertical", 10, 2, 12, 2),
    Sketcher.Constraint("Vertical", 11, 2, 14, 2),
    Sketcher.Constraint("Vertical", 4, 2, 18, 2),
    Sketcher.Constraint("Equal", 10, 13),
    Sketcher.Constraint("Angle", 0, Q("-30 deg")),
    Sketcher.Constraint("DistanceX", 2, 2, 1, 2, 2.9),
    Sketcher.Constraint("DistanceX", 0, 2, 6, 2, 106.3),
    Sketcher.Constraint("DistanceY", 9, 2, 12, 2, 58.8),
    Sketcher.Constraint("DistanceY", 1, 2, 1, 1, 3.348632),
    Sketcher.Constraint("DistanceY", 1, 2, -1, 1, 32.077401),
    Sketcher.Constraint("DistanceX", 0, 2, -1, 1, 49.922165),
])
pocket2 = body.newObject("PartDesign::Pocket", "Pocket001")
pocket2.Profile = sketch5
pocket2.Length = 2.6
pocket2.Reversed = True

# Sketch on XZ plane
sketch6 = body.newObject("Sketcher::SketchObject", "Sketch005")
sketch6.AttachmentSupport = (doc.getObject("XZ_Plane"), [""])
sketch6.MapMode = "FlatFace"
sketch6.AttachmentOffset = App.Placement(App.Vector(0, 0, -5), App.Rotation())
add_polygon(sketch6, [(-25.922165, -21.503085), (-25.922165, 19.496915), (53.077835, 19.496915), (53.077835, -21.503085)])  # lines 0-3
sketch6.addConstraint([
    Sketcher.Constraint("Vertical", 0),
    Sketcher.Constraint("Horizontal", 1),
    Sketcher.Constraint("Vertical", 2),
    Sketcher.Constraint("Horizontal", 3),
    Sketcher.Constraint("DistanceX", 1, 1, 1, 2, 79.0),
    Sketcher.Constraint("DistanceY", 0, 1, 0, 2, 41.0),
    Sketcher.Constraint("DistanceX", 0, 2, -1, 1, 25.922165),
    Sketcher.Constraint("DistanceY", -1, 1, 0, 2, 19.496915),
])
pocket3 = body.newObject("PartDesign::Pocket", "Pocket002")
pocket3.Profile = sketch6
pocket3.Type = "ThroughAll"
pocket3.Reversed = True

# Sketch on XZ plane
sketch7 = body.newObject("Sketcher::SketchObject", "Sketch006")
sketch7.AttachmentSupport = (doc.getObject("XZ_Plane"), [""])
sketch7.MapMode = "FlatFace"
sketch7.AttachmentOffset = App.Placement(App.Vector(0, 0, -2), App.Rotation())
add_polygon(sketch7, [(-26.922165, 20.496915), (-26.922165, -22.503085), (54.154284, -22.503085), (54.154284, 20.496915)])  # lines 0-3
add_polygon(sketch7, [(53.077835, -21.503085), (-25.922165, -21.503085), (-25.922165, 19.496915), (53.077835, 19.496915)])  # lines 4-7
sketch7.addConstraint([
    Sketcher.Constraint("Vertical", 0),
    Sketcher.Constraint("Horizontal", 1),
    Sketcher.Constraint("Vertical", 2),
    Sketcher.Constraint("Horizontal", 3),
    Sketcher.Constraint("Horizontal", 4),
    Sketcher.Constraint("Vertical", 5),
    Sketcher.Constraint("Horizontal", 6),
    Sketcher.Constraint("Vertical", 7),
    Sketcher.Constraint("DistanceX", 4, 2, 4, 1, 79.0),
    Sketcher.Constraint("DistanceY", 0, 2, 0, 1, 43.0),
    Sketcher.Constraint("DistanceY", 5, 1, 5, 2, 41.0),
    Sketcher.Constraint("DistanceX", 0, 2, 4, 2, 1.0),
    Sketcher.Constraint("DistanceY", 0, 2, 4, 2, 1.0),
    Sketcher.Constraint("DistanceX", 1, 1, 1, 2, 81.076449),
    Sketcher.Constraint("DistanceX", 0, 2, -1, 1, 26.922165),
    Sketcher.Constraint("DistanceY", 0, 2, -1, 1, 22.503085),
])
pad4 = body.newObject("PartDesign::Pad", "Pad003")
pad4.Profile = sketch7
pad4.Length = 20

# Sketch on XZ plane
sketch8 = body.newObject("Sketcher::SketchObject", "Sketch007")
sketch8.AttachmentSupport = (doc.getObject("XZ_Plane"), [""])
sketch8.MapMode = "FlatFace"
sketch8.AttachmentOffset = App.Placement(App.Vector(0, 0, -2), App.Rotation())
sketch8.addGeometry(Part.Circle(App.Vector(-38.422165, -25.003085, 0), App.Vector(0, 0, 1), 3), False)
sketch8.addConstraint([
    Sketcher.Constraint("Diameter", 0, 6.0),
    Sketcher.Constraint("DistanceX", 0, 3, -1, 1, 38.422165),
    Sketcher.Constraint("DistanceY", 0, 3, -1, 1, 25.003085),
])
pocket4 = body.newObject("PartDesign::Pocket", "Pocket003")
pocket4.Profile = sketch8
pocket4.Type = "ThroughAll"

# Sketch on XZ plane
sketch9 = body.newObject("Sketcher::SketchObject", "Sketch008")
sketch9.AttachmentSupport = (doc.getObject("XZ_Plane"), [""])
sketch9.MapMode = "FlatFace"
sketch9.AttachmentOffset = App.Placement(App.Vector(0, 0, -2), App.Rotation())
sketch9.addGeometry(Part.Circle(App.Vector(-39.672165, -1.003085, 0), App.Vector(0, 0, 1), 4), False)
sketch9.addConstraint([
    Sketcher.Constraint("Diameter", 0, 8.0),
    Sketcher.Constraint("DistanceX", 0, 3, -1, 1, 39.672165),
    Sketcher.Constraint("DistanceY", 0, 3, -1, 1, 1.003085),
])
pocket5 = body.newObject("PartDesign::Pocket", "Pocket004")
pocket5.Profile = sketch9
pocket5.Type = "ThroughAll"

# Sketch on XZ plane
sketch10 = body.newObject("Sketcher::SketchObject", "Sketch009")
sketch10.AttachmentSupport = (doc.getObject("XZ_Plane"), [""])
sketch10.MapMode = "FlatFace"
sketch10.AttachmentOffset = App.Placement(App.Vector(0, 0, 18), App.Rotation())
add_polygon(sketch10, [(-18.922165, 20.496915), (-18.922165, -22.503085), (-8.922165, -22.503085), (-8.922165, 20.496915)])  # lines 0-3
sketch10.addGeometry(Part.Circle(App.Vector(-13.922165, -10.503085, 0), App.Vector(0, 0, 1), 1.6), False)  # 4
sketch10.addGeometry(Part.Circle(App.Vector(-13.922165, 8.496915, 0), App.Vector(0, 0, 1), 1.6), False)  # 5
add_polygon(sketch10, [(36.077835, 20.496915), (36.077835, -22.503085), (46.077835, -22.503085), (46.077835, 20.496915)])  # lines 6-9
sketch10.addGeometry(Part.Circle(App.Vector(41.077835, -10.503085, 0), App.Vector(0, 0, 1), 1.6), False)  # 10
sketch10.addGeometry(Part.Circle(App.Vector(41.077835, 8.496915, 0), App.Vector(0, 0, 1), 1.6), False)  # 11
sketch10.addConstraint([
    Sketcher.Constraint("Vertical", 0),
    Sketcher.Constraint("Horizontal", 1),
    Sketcher.Constraint("Vertical", 2),
    Sketcher.Constraint("Horizontal", 3),
    Sketcher.Constraint("Vertical", 6),
    Sketcher.Constraint("Horizontal", 7),
    Sketcher.Constraint("Vertical", 8),
    Sketcher.Constraint("Horizontal", 9),
    Sketcher.Constraint("Equal", 4, 5),
    Sketcher.Constraint("Equal", 5, 10),
    Sketcher.Constraint("Equal", 10, 11),
    Sketcher.Constraint("Horizontal", 4, 3, 10, 3),
    Sketcher.Constraint("Horizontal", 5, 3, 11, 3),
    Sketcher.Constraint("Horizontal", 1, 2, 6, 2),
    Sketcher.Constraint("Horizontal", 3, 2, 8, 2),
    Sketcher.Constraint("Vertical", 4, 3, 5, 3),
    Sketcher.Constraint("Vertical", 10, 3, 11, 3),
    Sketcher.Constraint("Equal", 3, 7),
    Sketcher.Constraint("Diameter", 4, 3.2),
    Sketcher.Constraint("DistanceX", 1, 1, 1, 2, 10.0),
    Sketcher.Constraint("DistanceY", 0, 2, 0, 1, 43.0),
    Sketcher.Constraint("DistanceY", 4, 3, 5, 3, 19.0),
    Sketcher.Constraint("DistanceX", 4, 3, 10, 3, 55.0),
    Sketcher.Constraint("DistanceX", 0, 2, 4, 3, 5.0),
    Sketcher.Constraint("DistanceY", 0, 2, 4, 3, 12.0),
    Sketcher.Constraint("DistanceX", 6, 2, 10, 3, 5.0),
    Sketcher.Constraint("DistanceX", 4, 3, -1, 1, 13.922165),
    Sketcher.Constraint("DistanceY", 4, 3, -1, 1, 10.503085),
])
pad5 = body.newObject("PartDesign::Pad", "Pad004")
pad5.Profile = sketch10
pad5.Length = 1

# Sketch on XZ plane
sketch11 = body.newObject("Sketcher::SketchObject", "Sketch010")
sketch11.AttachmentSupport = (doc.getObject("XZ_Plane"), [""])
sketch11.MapMode = "FlatFace"
sketch11.AttachmentOffset = App.Placement(App.Vector(0, 0, -2), App.Rotation())
add_polygon(sketch11, [(8.577835, -22.503085), (8.577835, -30.003085), (18.577835, -30.003085), (18.577835, -22.503085)])  # lines 0-3
add_polygon(sketch11, [(16.477835, -27.927401), (13.577835, -29.601717), (10.677835, -27.927401), (10.677835, -24.578769), (13.577835, -22.904453), (16.477835, -24.578769)])  # lines 4-9
add_polygon(sketch11, [(8.577835, 27.996915), (8.577835, 20.496915), (18.577835, 20.496915), (18.577835, 27.996915)])  # lines 10-13
add_polygon(sketch11, [(16.375768, 22.631527), (13.577835, 21.01614), (10.779901, 22.631527), (10.779901, 25.862303), (13.577835, 27.47769), (16.375768, 25.862303)])  # lines 14-19
sketch11.addConstraint([
    Sketcher.Constraint("Vertical", 0),
    Sketcher.Constraint("Horizontal", 1),
    Sketcher.Constraint("Vertical", 2),
    Sketcher.Constraint("Horizontal", 3),
    Sketcher.Constraint("Vertical", 6),
    Sketcher.Constraint("Vertical", 9),
    Sketcher.Constraint("Vertical", 10),
    Sketcher.Constraint("Horizontal", 11),
    Sketcher.Constraint("Vertical", 12),
    Sketcher.Constraint("Horizontal", 13),
    Sketcher.Constraint("Vertical", 16),
    Sketcher.Constraint("Vertical", 19),
    Sketcher.Constraint("Parallel", 4, 7),
    Sketcher.Constraint("Parallel", 5, 8),
    Sketcher.Constraint("Parallel", 7, 14),
    Sketcher.Constraint("Parallel", 8, 15),
    Sketcher.Constraint("Parallel", 14, 17),
    Sketcher.Constraint("Parallel", 15, 18),
    Sketcher.Constraint("Horizontal", 6, 2, 8, 2),
    Sketcher.Constraint("Horizontal", 5, 2, 9, 2),
    Sketcher.Constraint("Horizontal", 16, 2, 18, 2),
    Sketcher.Constraint("Horizontal", 15, 2, 19, 2),
    Sketcher.Constraint("Vertical", 4, 2, 7, 2),
    Sketcher.Constraint("Vertical", 3, 2, 10, 2),
    Sketcher.Constraint("Vertical", 2, 2, 11, 2),
    Sketcher.Constraint("Vertical", 7, 2, 14, 2),
    Sketcher.Constraint("Equal", 2, 10),
    Sketcher.Constraint("DistanceX", 1, 1, 1, 2, 10.0),
    Sketcher.Constraint("Angle", 4, Q("-150 deg")),
    Sketcher.Constraint("DistanceY", 0, 2, 0, 1, 7.5),
    Sketcher.Constraint("DistanceX", 0, 2, 4, 2, 5.0),
    Sketcher.Constraint("DistanceY", 3, 2, 10, 2, 43.0),
    Sketcher.Constraint("DistanceX", 0, 2, 5, 2, 2.1),
    Sketcher.Constraint("DistanceY", 6, 1, 6, 2, 3.348632),
    Sketcher.Constraint("DistanceY", 5, 2, -1, 1, 27.927401),
    Sketcher.Constraint("DistanceX", -1, 1, 15, 2, 10.779901),
    Sketcher.Constraint("DistanceY", 16, 1, 16, 2, 3.230775),
    Sketcher.Constraint("DistanceY", -1, 1, 14, 2, 21.01614),
    Sketcher.Constraint("DistanceY", -1, 1, 17, 2, 27.47769),
    Sketcher.Constraint("DistanceY", 0, 2, 4, 2, 0.401368),
])
pad6 = body.newObject("PartDesign::Pad", "Pad005")
pad6.Profile = sketch11
pad6.Length = 3

# Sketch on XZ plane
sketch12 = body.newObject("Sketcher::SketchObject", "Sketch011")
sketch12.AttachmentSupport = (doc.getObject("XZ_Plane"), [""])
sketch12.MapMode = "FlatFace"
sketch12.AttachmentOffset = App.Placement(App.Vector(0, 0, -2), App.Rotation())
sketch12.addGeometry([
    Part.Circle(App.Vector(13.577835, 24.246915, 0), App.Vector(0, 0, 1), 1.75),
    Part.Circle(App.Vector(13.577835, -26.253085, 0), App.Vector(0, 0, 1), 1.75),
], False)
sketch12.addConstraint([
    Sketcher.Constraint("Equal", 0, 1),
    Sketcher.Constraint("Vertical", 0, 3, 1, 3),
    Sketcher.Constraint("Diameter", 0, 3.5),
    Sketcher.Constraint("DistanceY", 1, 3, 0, 3, 50.5),
    Sketcher.Constraint("DistanceX", -1, 1, 0, 3, 13.577835),
    Sketcher.Constraint("DistanceY", -1, 1, 0, 3, 24.246915),
])
pocket6 = body.newObject("PartDesign::Pocket", "Pocket005")
pocket6.Profile = sketch12
pocket6.Type = "ThroughAll"

doc.recompute()
